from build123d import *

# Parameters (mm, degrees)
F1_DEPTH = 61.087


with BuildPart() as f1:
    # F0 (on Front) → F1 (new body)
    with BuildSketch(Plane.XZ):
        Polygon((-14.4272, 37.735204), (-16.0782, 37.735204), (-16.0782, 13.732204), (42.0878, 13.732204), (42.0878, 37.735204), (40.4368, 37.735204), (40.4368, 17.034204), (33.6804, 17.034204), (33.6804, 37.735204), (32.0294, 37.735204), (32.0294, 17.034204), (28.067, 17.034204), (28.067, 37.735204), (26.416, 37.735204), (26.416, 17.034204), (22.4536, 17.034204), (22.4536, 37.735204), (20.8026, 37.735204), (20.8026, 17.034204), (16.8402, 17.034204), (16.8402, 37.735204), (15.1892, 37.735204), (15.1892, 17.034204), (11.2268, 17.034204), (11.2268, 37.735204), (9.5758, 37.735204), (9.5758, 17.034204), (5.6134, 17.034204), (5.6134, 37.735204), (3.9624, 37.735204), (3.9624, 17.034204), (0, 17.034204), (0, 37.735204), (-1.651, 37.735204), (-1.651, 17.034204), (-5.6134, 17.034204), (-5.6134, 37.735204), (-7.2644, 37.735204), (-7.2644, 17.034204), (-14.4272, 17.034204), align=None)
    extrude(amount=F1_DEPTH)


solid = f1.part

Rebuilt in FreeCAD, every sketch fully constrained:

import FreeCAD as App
import Part
import Sketcher
Q = App.Units.Quantity

doc = App.newDocument("Part")
body = doc.addObject("PartDesign::Body", "Body")

# Sketch on XZ plane
sketch1 = body.newObject("Sketcher::SketchObject", "Sketch")
sketch1.AttachmentSupport = (doc.getObject("XZ_Plane"), [""])
sketch1.MapMode = "FlatFace"
sketch1.addGeometry(Part.LineSegment(App.Vector(-14.4, 37.7, 0), App.Vector(-16.1, 37.7, 0)), False)
sketch1.addGeometry(Part.LineSegment(App.Vector(-16.1, 37.7, 0), App.Vector(-16.1, 13.7, 0)), False)
sketch1.addGeometry(Part.LineSegment(App.Vector(-16.1, 13.7, 0), App.Vector(42.1, 13.7, 0)), False)
sketch1.addGeometry(Part.LineSegment(App.Vector(42.1, 13.7, 0), App.Vector(42.1, 37.7, 0)), False)
sketch1.addGeometry(Part.LineSegment(App.Vector(42.1, 37.7, 0), App.Vector(40.4, 37.7, 0)), False)
sketch1.addGeometry(Part.LineSegment(App.Vector(40.4, 37.7, 0), App.Vector(40.4, 17, 0)), False)
sketch1.addGeometry(Part.LineSegment(App.Vector(40.4, 17, 0), App.Vector(33.7, 17, 0)), False)
sketch1.addGeometry(Part.LineSegment(App.Vector(33.7, 17, 0), App.Vector(33.7, 37.7, 0)), False)
sketch1.addGeometry(Part.LineSegment(App.Vector(33.7, 37.7, 0), App.Vector(32, 37.7, 0)), False)
sketch1.addGeometry(Part.LineSegment(App.Vector(32, 37.7, 0), App.Vector(32, 17, 0)), False)
sketch1.addGeometry(Part.LineSegment(App.Vector(32, 17, 0), App.Vector(28.1, 17, 0)), False)
sketch1.addGeometry(Part.LineSegment(App.Vector(28.1, 17, 0), App.Vector(28.1, 37.7, 0)), False)
sketch1.addGeometry(Part.LineSegment(App.Vector(28.1, 37.7, 0), App.Vector(26.4, 37.7, 0)), False)
sketch1.addGeometry(Part.LineSegment(App.Vector(26.4, 37.7, 0), App.Vector(26.4, 17, 0)), False)
sketch1.addGeometry(Part.LineSegment(App.Vector(26.4, 17, 0), App.Vector(22.5, 17, 0)), False)
sketch1.addGeometry(Part.LineSegment(App.Vector(22.5, 17, 0), App.Vector(22.5, 37.7, 0)), False)
sketch1.addGeometry(Part.LineSegment(App.Vector(22.5, 37.7, 0), App.Vector(20.8, 37.7, 0)), False)
sketch1.addGeometry(Part.LineSegment(App.Vector(20.8, 37.7, 0), App.Vector(20.8, 17, 0)), False)
sketch1.addGeometry(Part.LineSegment(App.Vector(20.8, 17, 0), App.Vector(16.8, 17, 0)), False)
sketch1.addGeometry(Part.LineSegment(App.Vector(16.8, 17, 0), App.Vector(16.8, 37.7, 0)), False)
sketch1.addGeometry(Part.LineSegment(App.Vector(16.8, 37.7, 0), App.Vector(15.2, 37.7, 0)), False)
sketch1.addGeometry(Part.LineSegment(App.Vector(15.2, 37.7, 0), App.Vector(15.2, 17, 0)), False)
sketch1.addGeometry(Part.LineSegment(App.Vector(15.2, 17, 0), App.Vector(11.2, 17, 0)), False)
sketch1.addGeometry(Part.LineSegment(App.Vector(11.2, 17, 0), App.Vector(11.2, 37.7, 0)), False)
sketch1.addGeometry(Part.LineSegment(App.Vector(11.2, 37.7, 0), App.Vector(9.6, 37.7, 0)), False)
sketch1.addGeometry(Part.LineSegment(App.Vector(9.6, 37.7, 0), App.Vector(9.6, 17, 0)), False)
sketch1.addGeometry(Part.LineSegment(App.Vector(9.6, 17, 0), App.Vector(5.6, 17, 0)), False)
sketch1.addGeometry(Part.LineSegment(App.Vector(5.6, 17, 0), App.Vector(5.6, 37.7, 0)), False)
sketch1.addGeometry(Part.LineSegment(App.Vector(5.6, 37.7, 0), App.Vector(4, 37.7, 0)), False)
sketch1.addGeometry(Part.LineSegment(App.Vector(4, 37.7, 0), App.Vector(4, 17, 0)), False)
sketch1.addGeometry(Part.LineSegment(App.Vector(4, 17, 0), App.Vector(0, 17, 0)), False)
sketch1.addGeometry(Part.LineSegment(App.Vector(0, 17, 0), App.Vector(0, 37.7, 0)), False)
sketch1.addGeometry(Part.LineSegment(App.Vector(0, 37.7, 0), App.Vector(-1.7, 37.7, 0)), False)
sketch1.addGeometry(Part.LineSegment(App.Vector(-1.7, 37.7, 0), App.Vector(-1.7, 17, 0)), False)
sketch1.addGeometry(Part.LineSegment(App.Vector(-1.7, 17, 0), App.Vector(-5.6, 17, 0)), False)
sketch1.addGeometry(Part.LineSegment(App.Vector(-5.6, 17, 0), App.Vector(-5.6, 37.7, 0)), False)
sketch1.addGeometry(Part.LineSegment(App.Vector(-5.6, 37.7, 0), App.Vector(-7.3, 37.7, 0)), False)
sketch1.addGeometry(Part.LineSegment(App.Vector(-7.3, 37.7, 0), App.Vector(-7.3, 17, 0)), False)
sketch1.addGeometry(Part.LineSegment(App.Vector(-7.3, 17, 0), App.Vector(-14.4, 17, 0)), False)
sketch1.addGeometry(Part.LineSegment(App.Vector(-14.4, 17, 0), App.Vector(-14.4, 37.7, 0)), False)
sketch1.addConstraint(Sketcher.Constraint("Coincident", 0, 2, 1, 1))
sketch1.addConstraint(Sketcher.Constraint("Coincident", 1, 2, 2, 1))
sketch1.addConstraint(Sketcher.Constraint("Coincident", 2, 2, 3, 1))
sketch1.addConstraint(Sketcher.Constraint("Coincident", 3, 2, 4, 1))
sketch1.addConstraint(Sketcher.Constraint("Coincident", 4, 2, 5, 1))
sketch1.addConstraint(Sketcher.Constraint("Coincident", 5, 2, 6, 1))
sketch1.addConstraint(Sketcher.Constraint("Coincident", 6, 2, 7, 1))
sketch1.addConstraint(Sketcher.Constraint("Coincident", 7, 2, 8, 1))
sketch1.addConstraint(Sketcher.Constraint("Coincident", 8, 2, 9, 1))
sketch1.addConstraint(Sketcher.Constraint("Coincident", 9, 2, 10, 1))
sketch1.addConstraint(Sketcher.Constraint("Coincident", 10, 2, 11, 1))
sketch1.addConstraint(Sketcher.Constraint("Coincident", 11, 2, 12, 1))
sketch1.addConstraint(Sketcher.Constraint("Coincident", 12, 2, 13, 1))
sketch1.addConstraint(Sketcher.Constraint("Coincident", 13, 2, 14, 1))
sketch1.addConstraint(Sketcher.Constraint("Coincident", 14, 2, 15, 1))
sketch1.addConstraint(Sketcher.Constraint("Coincident", 15, 2, 16, 1))
sketch1.addConstraint(Sketcher.Constraint("Coincident", 16, 2, 17, 1))
sketch1.addConstraint(Sketcher.Constraint("Coincident", 17, 2, 18, 1))
sketch1.addConstraint(Sketcher.Constraint("Coincident", 18, 2, 19, 1))
sketch1.addConstraint(Sketcher.Constraint("Coincident", 19, 2, 20, 1))
sketch1.addConstraint(Sketcher.Constraint("Coincident", 20, 2, 21, 1))
sketch1.addConstraint(Sketcher.Constraint("Coincident", 21, 2, 22, 1))
sketch1.addConstraint(Sketcher.Constraint("Coincident", 22, 2, 23, 1))
sketch1.addConstraint(Sketcher.Constraint("Coincident", 23, 2, 24, 1))
sketch1.addConstraint(Sketcher.Constraint("Coincident", 24, 2, 25, 1))
sketch1.addConstraint(Sketcher.Constraint("Coincident", 25, 2, 26, 1))
sketch1.addConstraint(Sketcher.Constraint("Coincident", 26, 2, 27, 1))
sketch1.addConstraint(Sketcher.Constraint("Coincident", 27, 2, 28, 1))
sketch1.addConstraint(Sketcher.Constraint("Coincident", 28, 2, 29, 1))
sketch1.addConstraint(Sketcher.Constraint("Coincident", 29, 2, 30, 1))
sketch1.addConstraint(Sketcher.Constraint("Coincident", 30, 2, 31, 1))
sketch1.addConstraint(Sketcher.Constraint("Coincident", 31, 2, 32, 1))
sketch1.addConstraint(Sketcher.Constraint("Coincident", 32, 2, 33, 1))
sketch1.addConstraint(Sketcher.Constraint("Coincident", 33, 2, 34, 1))
sketch1.addConstraint(Sketcher.Constraint("Coincident", 34, 2, 35, 1))
sketch1.addConstraint(Sketcher.Constraint("Coincident", 35, 2, 36, 1))
sketch1.addConstraint(Sketcher.Constraint("Coincident", 36, 2, 37, 1))
sketch1.addConstraint(Sketcher.Constraint("Coincident", 37, 2, 38, 1))
sketch1.addConstraint(Sketcher.Constraint("Coincident", 38, 2, 39, 1))
sketch1.addConstraint(Sketcher.Constraint("Coincident", 39, 2, 0, 1))
sketch1.addConstraint(Sketcher.Constraint("Horizontal", 0))
sketch1.addConstraint(Sketcher.Constraint("Vertical", 1))
sketch1.addConstraint(Sketcher.Constraint("Horizontal", 2))
sketch1.addConstraint(Sketcher.Constraint("Vertical", 3))
sketch1.addConstraint(Sketcher.Constraint("Horizontal", 4))
sketch1.addConstraint(Sketcher.Constraint("Vertical", 5))
sketch1.addConstraint(Sketcher.Constraint("Horizontal", 6))
sketch1.addConstraint(Sketcher.Constraint("Vertical", 7))
sketch1.addConstraint(Sketcher.Constraint("Horizontal", 8))
sketch1.addConstraint(Sketcher.Constraint("Vertical", 9))
sketch1.addConstraint(Sketcher.Constraint("Horizontal", 10))
sketch1.addConstraint(Sketcher.Constraint("Vertical", 11))
sketch1.addConstraint(Sketcher.Constraint("Horizontal", 12))
sketch1.addConstraint(Sketcher.Constraint("Vertical", 13))
sketch1.addConstraint(Sketcher.Constraint("Horizontal", 14))
sketch1.addConstraint(Sketcher.Constraint("Vertical", 15))
sketch1.addConstraint(Sketcher.Constraint("Horizontal", 16))
sketch1.addConstraint(Sketcher.Constraint("Vertical", 17))
sketch1.addConstraint(Sketcher.Constraint("Horizontal", 18))
sketch1.addConstraint(Sketcher.Constraint("Vertical", 19))
sketch1.addConstraint(Sketcher.Constraint("Horizontal", 20))
sketch1.addConstraint(Sketcher.Constraint("Vertical", 21))
sketch1.addConstraint(Sketcher.Constraint("Horizontal", 22))
sketch1.addConstraint(Sketcher.Constraint("Vertical", 23))
sketch1.addConstraint(Sketcher.Constraint("Horizontal", 24))
sketch1.addConstraint(Sketcher.Constraint("Vertical", 25))
sketch1.addConstraint(Sketcher.Constraint("Horizontal", 26))
sketch1.addConstraint(Sketcher.Constraint("Vertical", 27))
sketch1.addConstraint(Sketcher.Constraint("Horizontal", 28))
sketch1.addConstraint(Sketcher.Constraint("Vertical", 29))
sketch1.addConstraint(Sketcher.Constraint("Horizontal", 30))
sketch1.addConstraint(Sketcher.Constraint("Vertical", 31))
sketch1.addConstraint(Sketcher.Constraint("Horizontal", 32))
sketch1.addConstraint(Sketcher.Constraint("Vertical", 33))
sketch1.addConstraint(Sketcher.Constraint("Horizontal", 34))
sketch1.addConstraint(Sketcher.Constraint("Vertical", 35))
sketch1.addConstraint(Sketcher.Constraint("Horizontal", 36))
sketch1.addConstraint(Sketcher.Constraint("Vertical", 37))
sketch1.addConstraint(Sketcher.Constraint("Horizontal", 38))
sketch1.addConstraint(Sketcher.Constraint("Vertical", 39))
sketch1.addConstraint(Sketcher.Constraint("Symmetric", 26, 2, 34, 2, -2))
sketch1.addConstraint(Sketcher.Constraint("PointOnObject", 30, 2, -2))
sketch1.addConstraint(Sketcher.Constraint("Horizontal", 0, 2, 3, 2))
sketch1.addConstraint(Sketcher.Constraint("Horizontal", 4, 2, 7, 2))
sketch1.addConstraint(Sketcher.Constraint("Horizontal", 6, 2, 9, 2))
sketch1.addConstraint(Sketcher.Constraint("Horizontal", 8, 2, 11, 2))
sketch1.addConstraint(Sketcher.Constraint("Horizontal", 10, 2, 13, 2))
sketch1.addConstraint(Sketcher.Constraint("Horizontal", 12, 2, 15, 2))
sketch1.addConstraint(Sketcher.Constraint("Horizontal", 14, 2, 17, 2))
sketch1.addConstraint(Sketcher.Constraint("Horizontal", 16, 2, 19, 2))
sketch1.addConstraint(Sketcher.Constraint("Horizontal", 18, 2, 21, 2))
sketch1.addConstraint(Sketcher.Constraint("Horizontal", 20, 2, 23, 2))
sketch1.addConstraint(Sketcher.Constraint("Horizontal", 22, 2, 25, 2))
sketch1.addConstraint(Sketcher.Constraint("Horizontal", 24, 2, 27, 2))
sketch1.addConstraint(Sketcher.Constraint("Horizontal", 26, 2, 29, 2))
sketch1.addConstraint(Sketcher.Constraint("Horizontal", 28, 2, 31, 2))
sketch1.addConstraint(Sketcher.Constraint("Horizontal", 32, 2, 35, 2))
sketch1.addConstraint(Sketcher.Constraint("Horizontal", 34, 2, 37, 2))
sketch1.addConstraint(Sketcher.Constraint("Equal", 0, 4))
sketch1.addConstraint(Sketcher.Constraint("Equal", 4, 8))
sketch1.addConstraint(Sketcher.Constraint("Equal", 8, 12))
sketch1.addConstraint(Sketcher.Constraint("Equal", 10, 14))
sketch1.addConstraint(Sketcher.Constraint("Equal", 12, 16))
sketch1.addConstraint(Sketcher.Constraint("Equal", 14, 18))
sketch1.addConstraint(Sketcher.Constraint("Equal", 16, 20))
sketch1.addConstraint(Sketcher.Constraint("Equal", 18, 22))
sketch1.addConstraint(Sketcher.Constraint("Equal", 20, 24))
sketch1.addConstraint(Sketcher.Constraint("Equal", 22, 26))
sketch1.addConstraint(Sketcher.Constraint("Equal", 24, 28))
sketch1.addConstraint(Sketcher.Constraint("Equal", 26, 30))
sketch1.addConstraint(Sketcher.Constraint("Equal", 28, 32))
sketch1.addConstraint(Sketcher.Constraint("Equal", 32, 36))
sketch1.addConstraint(Sketcher.Constraint("DistanceX", 2, 1, 2, 2, Q("2.29 in")))
sketch1.addConstraint(Sketcher.Constraint("DistanceX", 0, 2, 0, 1, Q("0.065 in")))
sketch1.addConstraint(Sketcher.Constraint("DistanceX", 6, 2, 6, 1, Q("0.266 in")))
sketch1.addConstraint(Sketcher.Constraint("DistanceX", 10, 2, 10, 1, Q("0.156 in")))
sketch1.addConstraint(Sketcher.Constraint("DistanceY", 1, 2, 1, 1, Q("0.945 in")))
sketch1.addConstraint(Sketcher.Constraint("DistanceY", 5, 2, 5, 1, Q("0.815 in")))
sketch1.addConstraint(Sketcher.Constraint("DistanceY", -1, 1, 0, 2, 37.735204))
pad1 = body.newObject("PartDesign::Pad", "Pad")
pad1.Profile = sketch1
pad1.Length = Q("2.405 in")

doc.recompute()
